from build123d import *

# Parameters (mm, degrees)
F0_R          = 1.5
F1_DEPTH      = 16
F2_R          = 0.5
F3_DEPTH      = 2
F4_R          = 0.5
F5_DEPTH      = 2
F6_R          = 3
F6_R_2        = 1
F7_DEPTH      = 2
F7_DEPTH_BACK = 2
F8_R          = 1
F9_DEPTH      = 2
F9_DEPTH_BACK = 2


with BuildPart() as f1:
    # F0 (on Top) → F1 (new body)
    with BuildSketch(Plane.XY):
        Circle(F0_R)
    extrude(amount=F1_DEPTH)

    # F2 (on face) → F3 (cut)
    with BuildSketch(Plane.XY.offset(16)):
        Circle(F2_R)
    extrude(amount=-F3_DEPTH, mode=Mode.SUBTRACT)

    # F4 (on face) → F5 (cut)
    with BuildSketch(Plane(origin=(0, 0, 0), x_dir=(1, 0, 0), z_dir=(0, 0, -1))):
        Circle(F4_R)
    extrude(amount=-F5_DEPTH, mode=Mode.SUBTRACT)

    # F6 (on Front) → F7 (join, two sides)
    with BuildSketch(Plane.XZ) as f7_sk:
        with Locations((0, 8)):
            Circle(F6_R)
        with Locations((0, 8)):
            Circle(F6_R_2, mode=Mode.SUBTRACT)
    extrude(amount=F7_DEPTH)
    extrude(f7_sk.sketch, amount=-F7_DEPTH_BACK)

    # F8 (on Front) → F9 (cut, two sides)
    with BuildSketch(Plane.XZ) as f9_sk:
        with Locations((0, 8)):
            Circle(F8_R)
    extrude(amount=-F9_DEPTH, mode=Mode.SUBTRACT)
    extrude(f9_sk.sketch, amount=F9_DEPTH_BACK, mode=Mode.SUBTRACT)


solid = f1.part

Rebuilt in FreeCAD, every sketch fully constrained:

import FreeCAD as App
import Part
import Sketcher
from FreeCAD import Vector
Q = App.Units.Quantity

doc = App.newDocument("Part")
body = doc.addObject("PartDesign::Body", "Body")

# Sketch on XY plane
sketch1 = body.newObject("Sketcher::SketchObject", "Sketch")
sketch1.AttachmentSupport = (doc.getObject("XY_Plane"), [""])
sketch1.MapMode = "FlatFace"
sketch1.addGeometry(Part.Circle(Vector(0, 0, 0), Vector(0, 0, 1), 1.5), False)
sketch1.addConstraint([
    Sketcher.Constraint("Coincident", 0, 3, -1, 1),
    Sketcher.Constraint("Diameter", 0, Q("3 mm")),
])
pad1 = body.newObject("PartDesign::Pad", "Pad")
pad1.Profile = sketch1
pad1.Length = 16

# Sketch on XY plane
sketch2 = body.newObject("Sketcher::SketchObject", "Sketch001")
sketch2.AttachmentSupport = (doc.getObject("XY_Plane"), [""])
sketch2.MapMode = "FlatFace"
sketch2.AttachmentOffset = App.Placement(Vector(0, 0, 16), App.Rotation())
sketch2.addGeometry(Part.Circle(Vector(0, 0, 0), Vector(0, 0, 1), 0.5), False)
sketch2.addConstraint([
    Sketcher.Constraint("Coincident", 0, 3, -1, 1),
    Sketcher.Constraint("Diameter", 0, Q("1 mm")),
])
pocket1 = body.newObject("PartDesign::Pocket", "Pocket")
pocket1.Profile = sketch2
pocket1.Length = 2

# Sketch on XY plane
sketch3 = body.newObject("Sketcher::SketchObject", "Sketch002")
sketch3.AttachmentSupport = (doc.getObject("XY_Plane"), [""])
sketch3.MapMode = "FlatFace"
sketch3.addGeometry(Part.Circle(Vector(0, 0, 0), Vector(0, 0, 1), 0.5), False)
sketch3.addConstraint([
    Sketcher.Constraint("Coincident", 0, 3, -1, 1),
    Sketcher.Constraint("Diameter", 0, Q("1 mm")),
])
pocket2 = body.newObject("PartDesign::Pocket", "Pocket001")
pocket2.Profile = sketch3
pocket2.Length = 2
pocket2.Reversed = True

# Sketch on XZ plane
sketch4 = body.newObject("Sketcher::SketchObject", "Sketch003")
sketch4.AttachmentSupport = (doc.getObject("XZ_Plane"), [""])
sketch4.MapMode = "FlatFace"
sketch4.addGeometry([
    Part.Circle(Vector(0, 8, 0), Vector(0, 0, 1), 3),
    Part.Circle(Vector(0, 8, 0), Vector(0, 0, 1), 1),
], False)
sketch4.addConstraint([
    Sketcher.Constraint("Coincident", 1, 3, 0, 3),
    Sketcher.Constraint("PointOnObject", 0, 3, -2),
    Sketcher.Constraint("Diameter", 0, Q("6 mm")),
    Sketcher.Constraint("Diameter", 1, Q("2 mm")),
    Sketcher.Constraint("DistanceY", -1, 1, 0, 3, Q("8 mm")),
])
pad2 = body.newObject("PartDesign::Pad", "Pad001")
pad2.Profile = sketch4
pad2.Type = "TwoLengths"
pad2.Length = 2
pad2.Length2 = 2

# Sketch on XZ plane
sketch5 = body.newObject("Sketcher::SketchObject", "Sketch004")
sketch5.AttachmentSupport = (doc.getObject("XZ_Plane"), [""])
sketch5.MapMode = "FlatFace"
sketch5.addGeometry(Part.Circle(Vector(0, 8, 0), Vector(0, 0, 1), 1), False)
sketch5.addConstraint([
    Sketcher.Constraint("PointOnObject", 0, 3, -2),
    Sketcher.Constraint("Diameter", 0, Q("2 mm")),
    Sketcher.Constraint("DistanceY", -1, 1, 0, 3, Q("8 mm")),
])
pocket3 = body.newObject("PartDesign::Pocket", "Pocket002")
pocket3.Profile = sketch5
pocket3.Type = "ThroughAll"
pocket3.Midplane = True

doc.recompute()
